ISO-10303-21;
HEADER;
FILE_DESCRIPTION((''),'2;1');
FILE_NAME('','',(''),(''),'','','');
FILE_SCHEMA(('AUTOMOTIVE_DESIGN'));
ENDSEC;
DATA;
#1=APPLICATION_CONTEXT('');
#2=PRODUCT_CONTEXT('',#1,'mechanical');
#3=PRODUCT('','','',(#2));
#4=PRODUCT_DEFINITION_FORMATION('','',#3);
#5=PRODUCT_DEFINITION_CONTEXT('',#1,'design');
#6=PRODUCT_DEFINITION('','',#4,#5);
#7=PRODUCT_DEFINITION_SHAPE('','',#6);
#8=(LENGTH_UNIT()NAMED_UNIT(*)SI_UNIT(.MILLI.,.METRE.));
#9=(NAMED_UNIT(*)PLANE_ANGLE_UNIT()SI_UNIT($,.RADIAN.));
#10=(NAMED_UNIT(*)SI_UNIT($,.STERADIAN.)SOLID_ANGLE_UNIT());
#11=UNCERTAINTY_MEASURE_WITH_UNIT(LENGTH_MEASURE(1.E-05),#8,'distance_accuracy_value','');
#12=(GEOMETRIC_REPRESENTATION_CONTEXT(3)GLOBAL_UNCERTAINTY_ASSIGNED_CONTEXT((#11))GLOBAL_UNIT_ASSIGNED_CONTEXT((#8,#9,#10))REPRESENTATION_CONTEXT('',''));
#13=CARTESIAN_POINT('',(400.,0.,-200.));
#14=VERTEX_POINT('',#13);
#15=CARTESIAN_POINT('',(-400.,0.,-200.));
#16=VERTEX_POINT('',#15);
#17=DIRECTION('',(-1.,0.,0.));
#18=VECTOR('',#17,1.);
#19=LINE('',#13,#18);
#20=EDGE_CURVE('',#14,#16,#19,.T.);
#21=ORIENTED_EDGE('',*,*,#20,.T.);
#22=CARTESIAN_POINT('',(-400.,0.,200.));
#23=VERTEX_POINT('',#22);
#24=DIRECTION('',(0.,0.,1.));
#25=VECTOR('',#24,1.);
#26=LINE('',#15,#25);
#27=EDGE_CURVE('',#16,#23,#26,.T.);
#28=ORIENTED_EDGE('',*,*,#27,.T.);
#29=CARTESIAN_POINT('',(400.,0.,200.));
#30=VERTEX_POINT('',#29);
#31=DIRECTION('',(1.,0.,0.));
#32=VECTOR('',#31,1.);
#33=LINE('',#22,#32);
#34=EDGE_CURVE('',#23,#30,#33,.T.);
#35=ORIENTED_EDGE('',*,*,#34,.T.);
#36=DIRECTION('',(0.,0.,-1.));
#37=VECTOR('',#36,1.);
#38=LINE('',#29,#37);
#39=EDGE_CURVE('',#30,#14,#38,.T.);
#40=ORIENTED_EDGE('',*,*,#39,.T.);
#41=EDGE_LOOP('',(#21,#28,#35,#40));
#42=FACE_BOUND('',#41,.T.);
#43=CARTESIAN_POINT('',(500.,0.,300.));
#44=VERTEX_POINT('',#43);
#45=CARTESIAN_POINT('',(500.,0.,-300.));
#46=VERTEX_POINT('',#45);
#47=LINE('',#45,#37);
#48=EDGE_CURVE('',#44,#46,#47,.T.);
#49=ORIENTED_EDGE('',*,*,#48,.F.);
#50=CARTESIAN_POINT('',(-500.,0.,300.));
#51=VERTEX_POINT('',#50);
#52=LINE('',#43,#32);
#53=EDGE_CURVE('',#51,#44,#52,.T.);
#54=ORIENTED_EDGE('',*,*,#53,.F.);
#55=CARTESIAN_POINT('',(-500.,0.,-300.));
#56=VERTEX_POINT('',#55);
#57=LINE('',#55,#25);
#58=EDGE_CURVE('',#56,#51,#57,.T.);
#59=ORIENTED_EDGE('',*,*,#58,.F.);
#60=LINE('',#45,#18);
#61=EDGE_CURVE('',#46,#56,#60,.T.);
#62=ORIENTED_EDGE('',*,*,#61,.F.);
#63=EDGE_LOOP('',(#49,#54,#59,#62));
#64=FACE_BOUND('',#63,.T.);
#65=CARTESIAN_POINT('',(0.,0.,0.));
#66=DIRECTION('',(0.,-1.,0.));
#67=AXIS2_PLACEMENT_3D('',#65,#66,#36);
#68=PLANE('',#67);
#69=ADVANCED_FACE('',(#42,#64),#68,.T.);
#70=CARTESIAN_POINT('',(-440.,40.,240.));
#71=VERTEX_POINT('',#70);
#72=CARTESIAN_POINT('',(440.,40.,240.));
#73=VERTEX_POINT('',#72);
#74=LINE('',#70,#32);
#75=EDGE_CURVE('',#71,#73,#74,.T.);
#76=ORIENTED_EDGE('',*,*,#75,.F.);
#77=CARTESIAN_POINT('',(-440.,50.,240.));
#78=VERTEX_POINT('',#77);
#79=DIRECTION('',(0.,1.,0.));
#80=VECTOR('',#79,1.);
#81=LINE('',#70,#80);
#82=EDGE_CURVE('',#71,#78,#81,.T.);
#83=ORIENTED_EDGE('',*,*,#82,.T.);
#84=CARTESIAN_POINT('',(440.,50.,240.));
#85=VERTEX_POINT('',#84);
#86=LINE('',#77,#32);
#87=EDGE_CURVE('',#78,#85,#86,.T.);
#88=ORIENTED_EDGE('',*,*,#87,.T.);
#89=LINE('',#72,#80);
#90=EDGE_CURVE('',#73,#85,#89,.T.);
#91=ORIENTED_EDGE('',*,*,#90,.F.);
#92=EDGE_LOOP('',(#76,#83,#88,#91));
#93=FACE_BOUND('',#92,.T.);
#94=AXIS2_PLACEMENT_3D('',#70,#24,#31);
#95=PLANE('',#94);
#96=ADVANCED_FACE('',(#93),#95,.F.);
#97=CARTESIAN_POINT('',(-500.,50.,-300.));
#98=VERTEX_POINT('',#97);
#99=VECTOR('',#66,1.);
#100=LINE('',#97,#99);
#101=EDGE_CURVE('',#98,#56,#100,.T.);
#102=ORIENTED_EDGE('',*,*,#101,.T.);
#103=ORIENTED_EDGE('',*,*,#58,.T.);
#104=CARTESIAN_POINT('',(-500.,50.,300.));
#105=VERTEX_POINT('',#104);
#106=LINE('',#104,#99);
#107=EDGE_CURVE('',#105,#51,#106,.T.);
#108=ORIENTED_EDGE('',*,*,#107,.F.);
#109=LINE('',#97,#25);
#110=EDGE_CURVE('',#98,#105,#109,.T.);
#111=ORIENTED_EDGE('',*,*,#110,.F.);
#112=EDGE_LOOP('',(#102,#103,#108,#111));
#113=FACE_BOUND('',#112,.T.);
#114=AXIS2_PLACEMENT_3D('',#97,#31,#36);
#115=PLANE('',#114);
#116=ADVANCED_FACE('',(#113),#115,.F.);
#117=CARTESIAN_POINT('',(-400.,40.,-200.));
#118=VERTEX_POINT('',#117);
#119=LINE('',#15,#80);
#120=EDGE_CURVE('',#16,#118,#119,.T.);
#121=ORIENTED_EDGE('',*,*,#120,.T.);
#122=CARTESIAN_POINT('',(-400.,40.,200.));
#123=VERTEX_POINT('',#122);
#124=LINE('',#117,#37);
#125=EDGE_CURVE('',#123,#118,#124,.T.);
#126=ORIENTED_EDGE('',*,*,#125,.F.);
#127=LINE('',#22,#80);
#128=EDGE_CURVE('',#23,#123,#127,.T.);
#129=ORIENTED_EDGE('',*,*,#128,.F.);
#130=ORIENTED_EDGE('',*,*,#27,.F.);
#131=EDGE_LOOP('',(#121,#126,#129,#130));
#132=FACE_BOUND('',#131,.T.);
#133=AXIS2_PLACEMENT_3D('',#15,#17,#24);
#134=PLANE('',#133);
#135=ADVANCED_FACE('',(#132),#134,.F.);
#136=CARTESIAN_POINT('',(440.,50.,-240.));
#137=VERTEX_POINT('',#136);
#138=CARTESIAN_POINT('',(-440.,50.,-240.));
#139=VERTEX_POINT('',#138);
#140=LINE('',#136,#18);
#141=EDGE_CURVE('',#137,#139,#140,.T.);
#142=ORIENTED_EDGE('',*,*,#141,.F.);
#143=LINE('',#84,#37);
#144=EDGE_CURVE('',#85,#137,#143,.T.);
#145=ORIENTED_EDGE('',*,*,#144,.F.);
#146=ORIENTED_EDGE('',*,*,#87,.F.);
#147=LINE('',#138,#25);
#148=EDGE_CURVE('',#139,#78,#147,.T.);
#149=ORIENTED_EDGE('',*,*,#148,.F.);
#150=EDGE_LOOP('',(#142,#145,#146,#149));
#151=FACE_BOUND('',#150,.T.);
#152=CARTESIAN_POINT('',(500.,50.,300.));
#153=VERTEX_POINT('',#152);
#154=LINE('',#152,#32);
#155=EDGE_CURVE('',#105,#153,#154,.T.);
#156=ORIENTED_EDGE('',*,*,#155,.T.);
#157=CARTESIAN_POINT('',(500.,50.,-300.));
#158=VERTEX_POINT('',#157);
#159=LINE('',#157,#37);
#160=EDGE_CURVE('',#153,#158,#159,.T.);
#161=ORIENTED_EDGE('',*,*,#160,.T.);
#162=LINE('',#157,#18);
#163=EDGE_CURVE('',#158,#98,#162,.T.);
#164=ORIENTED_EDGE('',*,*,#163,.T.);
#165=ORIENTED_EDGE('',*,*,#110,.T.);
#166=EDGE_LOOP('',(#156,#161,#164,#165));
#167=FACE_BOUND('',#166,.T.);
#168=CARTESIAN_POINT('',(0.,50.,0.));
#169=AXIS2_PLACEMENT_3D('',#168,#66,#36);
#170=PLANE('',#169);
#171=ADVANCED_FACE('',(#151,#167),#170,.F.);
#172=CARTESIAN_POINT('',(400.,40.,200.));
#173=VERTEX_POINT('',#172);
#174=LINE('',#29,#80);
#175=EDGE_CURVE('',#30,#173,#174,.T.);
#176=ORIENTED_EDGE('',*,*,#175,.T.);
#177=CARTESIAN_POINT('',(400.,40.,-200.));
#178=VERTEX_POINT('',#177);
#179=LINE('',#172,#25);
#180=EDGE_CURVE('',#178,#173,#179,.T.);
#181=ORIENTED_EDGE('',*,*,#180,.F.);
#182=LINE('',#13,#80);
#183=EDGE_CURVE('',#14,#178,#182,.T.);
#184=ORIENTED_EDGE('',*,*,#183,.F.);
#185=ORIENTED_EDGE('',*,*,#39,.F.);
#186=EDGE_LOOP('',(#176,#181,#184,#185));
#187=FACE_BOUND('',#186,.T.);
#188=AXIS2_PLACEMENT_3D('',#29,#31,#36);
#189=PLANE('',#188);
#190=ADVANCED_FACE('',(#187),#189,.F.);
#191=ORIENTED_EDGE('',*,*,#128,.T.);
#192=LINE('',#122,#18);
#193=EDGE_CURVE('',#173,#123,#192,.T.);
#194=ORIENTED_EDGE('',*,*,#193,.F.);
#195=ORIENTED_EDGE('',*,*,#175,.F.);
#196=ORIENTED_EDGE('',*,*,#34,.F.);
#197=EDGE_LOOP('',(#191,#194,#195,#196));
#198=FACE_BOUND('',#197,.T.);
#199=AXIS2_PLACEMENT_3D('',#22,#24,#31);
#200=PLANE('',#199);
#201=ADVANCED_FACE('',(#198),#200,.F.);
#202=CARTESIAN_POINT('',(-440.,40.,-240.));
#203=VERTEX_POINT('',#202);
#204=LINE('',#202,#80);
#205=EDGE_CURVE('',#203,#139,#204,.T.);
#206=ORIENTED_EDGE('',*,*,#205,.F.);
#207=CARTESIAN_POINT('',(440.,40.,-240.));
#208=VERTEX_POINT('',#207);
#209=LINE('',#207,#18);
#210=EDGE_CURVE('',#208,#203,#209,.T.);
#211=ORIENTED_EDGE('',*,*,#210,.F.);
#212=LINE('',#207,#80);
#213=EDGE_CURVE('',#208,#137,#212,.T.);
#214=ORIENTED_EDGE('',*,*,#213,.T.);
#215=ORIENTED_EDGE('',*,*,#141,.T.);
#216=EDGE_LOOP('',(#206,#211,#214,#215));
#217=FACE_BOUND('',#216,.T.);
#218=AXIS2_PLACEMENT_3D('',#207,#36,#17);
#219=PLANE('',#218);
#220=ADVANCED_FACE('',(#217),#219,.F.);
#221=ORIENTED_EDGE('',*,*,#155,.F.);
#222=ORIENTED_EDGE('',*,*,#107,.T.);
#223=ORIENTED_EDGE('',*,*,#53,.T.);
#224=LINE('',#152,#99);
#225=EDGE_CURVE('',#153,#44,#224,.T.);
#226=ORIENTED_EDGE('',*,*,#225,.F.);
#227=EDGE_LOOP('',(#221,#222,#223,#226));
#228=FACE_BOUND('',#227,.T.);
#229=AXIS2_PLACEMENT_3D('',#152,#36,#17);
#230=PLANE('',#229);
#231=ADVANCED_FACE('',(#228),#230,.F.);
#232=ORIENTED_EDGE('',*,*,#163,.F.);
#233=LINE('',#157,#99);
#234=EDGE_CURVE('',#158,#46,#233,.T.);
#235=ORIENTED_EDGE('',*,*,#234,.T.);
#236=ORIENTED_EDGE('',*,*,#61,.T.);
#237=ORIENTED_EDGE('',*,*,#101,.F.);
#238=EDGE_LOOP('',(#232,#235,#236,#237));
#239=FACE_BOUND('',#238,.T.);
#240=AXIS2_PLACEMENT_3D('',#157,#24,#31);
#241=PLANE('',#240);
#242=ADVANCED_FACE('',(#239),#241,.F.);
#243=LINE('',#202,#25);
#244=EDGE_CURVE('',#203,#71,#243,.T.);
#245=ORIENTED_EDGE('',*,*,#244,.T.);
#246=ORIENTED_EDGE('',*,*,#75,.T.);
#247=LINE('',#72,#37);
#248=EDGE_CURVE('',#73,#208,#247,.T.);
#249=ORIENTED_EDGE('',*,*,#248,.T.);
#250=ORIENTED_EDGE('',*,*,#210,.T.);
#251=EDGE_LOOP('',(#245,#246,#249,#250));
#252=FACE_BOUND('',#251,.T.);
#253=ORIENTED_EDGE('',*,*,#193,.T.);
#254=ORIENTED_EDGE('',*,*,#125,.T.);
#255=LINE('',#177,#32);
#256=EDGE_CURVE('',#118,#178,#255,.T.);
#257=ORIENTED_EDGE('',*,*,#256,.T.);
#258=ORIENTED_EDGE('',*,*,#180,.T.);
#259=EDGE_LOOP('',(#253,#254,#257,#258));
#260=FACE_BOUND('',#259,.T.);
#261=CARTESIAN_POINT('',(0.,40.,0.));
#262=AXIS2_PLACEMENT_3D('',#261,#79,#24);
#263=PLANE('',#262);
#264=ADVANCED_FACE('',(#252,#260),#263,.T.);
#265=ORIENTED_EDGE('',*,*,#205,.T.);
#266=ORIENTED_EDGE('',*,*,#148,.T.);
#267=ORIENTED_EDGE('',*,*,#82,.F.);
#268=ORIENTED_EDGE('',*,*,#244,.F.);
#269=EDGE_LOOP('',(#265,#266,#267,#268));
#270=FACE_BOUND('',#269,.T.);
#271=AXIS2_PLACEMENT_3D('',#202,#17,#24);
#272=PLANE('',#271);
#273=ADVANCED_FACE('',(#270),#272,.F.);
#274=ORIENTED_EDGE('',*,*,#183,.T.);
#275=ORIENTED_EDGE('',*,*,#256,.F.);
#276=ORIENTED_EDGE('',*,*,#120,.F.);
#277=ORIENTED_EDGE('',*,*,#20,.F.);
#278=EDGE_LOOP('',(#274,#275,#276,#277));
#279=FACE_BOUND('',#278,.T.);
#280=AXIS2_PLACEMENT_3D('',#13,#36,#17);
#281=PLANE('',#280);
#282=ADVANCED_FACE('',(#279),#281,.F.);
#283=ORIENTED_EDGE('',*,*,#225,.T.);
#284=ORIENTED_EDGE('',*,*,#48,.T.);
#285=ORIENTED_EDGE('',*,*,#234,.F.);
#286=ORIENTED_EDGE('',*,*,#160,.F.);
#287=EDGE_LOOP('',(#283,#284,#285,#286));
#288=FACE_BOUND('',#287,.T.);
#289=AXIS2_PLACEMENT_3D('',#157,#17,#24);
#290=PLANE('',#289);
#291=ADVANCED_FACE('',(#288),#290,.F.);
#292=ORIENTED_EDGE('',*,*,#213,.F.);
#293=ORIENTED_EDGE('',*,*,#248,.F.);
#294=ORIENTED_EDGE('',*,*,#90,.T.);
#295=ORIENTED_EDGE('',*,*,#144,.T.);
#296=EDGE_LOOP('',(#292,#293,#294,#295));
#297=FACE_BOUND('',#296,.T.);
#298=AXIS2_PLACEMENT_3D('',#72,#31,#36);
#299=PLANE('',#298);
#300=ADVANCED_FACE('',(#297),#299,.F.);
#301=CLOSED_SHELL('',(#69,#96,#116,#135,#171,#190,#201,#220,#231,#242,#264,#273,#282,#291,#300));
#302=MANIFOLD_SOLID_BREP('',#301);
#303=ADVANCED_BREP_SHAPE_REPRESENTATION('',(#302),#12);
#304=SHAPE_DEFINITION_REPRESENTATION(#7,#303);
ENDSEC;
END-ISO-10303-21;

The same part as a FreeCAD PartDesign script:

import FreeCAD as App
import Part
import Sketcher

V = App.Vector
Q = App.Units.Quantity


def add_polygon(sketch, points):
    """Adds a closed chain of lines whose ends are joined by coincident constraints."""
    first, n = sketch.GeometryCount, len(points)
    for a, b in zip(points, points[1:] + points[:1]):
        sketch.addGeometry(Part.LineSegment(App.Vector(*a, 0), App.Vector(*b, 0)), False)
    for i in range(n):
        sketch.addConstraint(Sketcher.Constraint("Coincident", first + i, 2, first + (i + 1) % n, 1))

doc = App.newDocument("Part")
params = doc.addObject("Spreadsheet::Sheet", "Params")
for row, (alias, value) in enumerate([
    ("sketch1_width", "1000 mm"),
    ("sketch1_height", "600 mm"),
    ("pad1_length", "50 mm"),
    ("sketch2_width", "800 mm"),
    ("sketch2_height", "400 mm"),
    ("sketch3_width", "880 mm"),
    ("sketch3_height", "480 mm"),
    ("pocket2_length", "10 mm"),
], start=1):
    params.set(f"A{row}", alias)
    params.set(f"B{row}", "=" + value)
    params.setAlias(f"B{row}", alias)

body = doc.addObject("PartDesign::Body", "Body")

# Sketch on XZ plane
sketch1 = body.newObject("Sketcher::SketchObject", "Sketch")
sketch1.AttachmentSupport = (doc.getObject("XZ_Plane"), [""])
sketch1.MapMode = "FlatFace"
add_polygon(sketch1, [(-500, -300), (-500, 300), (500, 300), (500, -300)])  # lines 0-3
sketch1.addConstraint(Sketcher.Constraint("Vertical", 0))
sketch1.addConstraint(Sketcher.Constraint("Horizontal", 1))
sketch1.addConstraint(Sketcher.Constraint("Vertical", 2))
sketch1.addConstraint(Sketcher.Constraint("Horizontal", 3))
sketch1.addConstraint(Sketcher.Constraint("Symmetric", 0, 2, 2, 2, -1, 1))
sketch1.addConstraint(Sketcher.Constraint("DistanceX", 1, 1, 1, 2, Q("1000 mm")))
sketch1.addConstraint(Sketcher.Constraint("DistanceY", 0, 1, 0, 2, Q("600 mm")))
sketch1.setExpression("Constraints[9]", "Params.sketch1_width")
sketch1.setExpression("Constraints[10]", "Params.sketch1_height")
pad1 = body.newObject("PartDesign::Pad", "Pad")
pad1.Profile = sketch1
pad1.setExpression("Length", "Params.pad1_length")
pad1.Reversed = True

# Sketch on XZ plane
sketch2 = body.newObject("Sketcher::SketchObject", "Sketch001")
sketch2.AttachmentSupport = (doc.getObject("XZ_Plane"), [""])
sketch2.MapMode = "FlatFace"
sketch2.AttachmentOffset = App.Placement(V(0, 0, -50), App.Rotation())
add_polygon(sketch2, [(-400, -200), (-400, 200), (400, 200), (400, -200)])  # lines 0-3
sketch2.addConstraint(Sketcher.Constraint("Vertical", 0))
sketch2.addConstraint(Sketcher.Constraint("Horizontal", 1))
sketch2.addConstraint(Sketcher.Constraint("Vertical", 2))
sketch2.addConstraint(Sketcher.Constraint("Horizontal", 3))
sketch2.addConstraint(Sketcher.Constraint("Symmetric", 0, 2, 2, 2, -1, 1))
sketch2.addConstraint(Sketcher.Constraint("DistanceX", 1, 1, 1, 2, Q("800 mm")))
sketch2.addConstraint(Sketcher.Constraint("DistanceY", 0, 1, 0, 2, Q("400 mm")))
sketch2.setExpression("Constraints[9]", "Params.sketch2_width")
sketch2.setExpression("Constraints[10]", "Params.sketch2_height")
pocket1 = body.newObject("PartDesign::Pocket", "Pocket")
pocket1.Profile = sketch2
pocket1.Type = "ThroughAll"
pocket1.Reversed = True

# Sketch on XZ plane
sketch3 = body.newObject("Sketcher::SketchObject", "Sketch002")
sketch3.AttachmentSupport = (doc.getObject("XZ_Plane"), [""])
sketch3.MapMode = "FlatFace"
sketch3.AttachmentOffset = App.Placement(V(0, 0, -50), App.Rotation())
add_polygon(sketch3, [(-440, -240), (-440, 240), (440, 240), (440, -240)])  # lines 0-3
sketch3.addConstraint(Sketcher.Constraint("Vertical", 0))
sketch3.addConstraint(Sketcher.Constraint("Horizontal", 1))
sketch3.addConstraint(Sketcher.Constraint("Vertical", 2))
sketch3.addConstraint(Sketcher.Constraint("Horizontal", 3))
sketch3.addConstraint(Sketcher.Constraint("Symmetric", 0, 2, 2, 2, -1, 1))
sketch3.addConstraint(Sketcher.Constraint("DistanceX", 1, 1, 1, 2, Q("880 mm")))
sketch3.addConstraint(Sketcher.Constraint("DistanceY", 0, 1, 0, 2, Q("480 mm")))
sketch3.setExpression("Constraints[9]", "Params.sketch3_width")
sketch3.setExpression("Constraints[10]", "Params.sketch3_height")
pocket2 = body.newObject("PartDesign::Pocket", "Pocket001")
pocket2.Profile = sketch3
pocket2.setExpression("Length", "Params.pocket2_length")
pocket2.Reversed = True

doc.recompute()
